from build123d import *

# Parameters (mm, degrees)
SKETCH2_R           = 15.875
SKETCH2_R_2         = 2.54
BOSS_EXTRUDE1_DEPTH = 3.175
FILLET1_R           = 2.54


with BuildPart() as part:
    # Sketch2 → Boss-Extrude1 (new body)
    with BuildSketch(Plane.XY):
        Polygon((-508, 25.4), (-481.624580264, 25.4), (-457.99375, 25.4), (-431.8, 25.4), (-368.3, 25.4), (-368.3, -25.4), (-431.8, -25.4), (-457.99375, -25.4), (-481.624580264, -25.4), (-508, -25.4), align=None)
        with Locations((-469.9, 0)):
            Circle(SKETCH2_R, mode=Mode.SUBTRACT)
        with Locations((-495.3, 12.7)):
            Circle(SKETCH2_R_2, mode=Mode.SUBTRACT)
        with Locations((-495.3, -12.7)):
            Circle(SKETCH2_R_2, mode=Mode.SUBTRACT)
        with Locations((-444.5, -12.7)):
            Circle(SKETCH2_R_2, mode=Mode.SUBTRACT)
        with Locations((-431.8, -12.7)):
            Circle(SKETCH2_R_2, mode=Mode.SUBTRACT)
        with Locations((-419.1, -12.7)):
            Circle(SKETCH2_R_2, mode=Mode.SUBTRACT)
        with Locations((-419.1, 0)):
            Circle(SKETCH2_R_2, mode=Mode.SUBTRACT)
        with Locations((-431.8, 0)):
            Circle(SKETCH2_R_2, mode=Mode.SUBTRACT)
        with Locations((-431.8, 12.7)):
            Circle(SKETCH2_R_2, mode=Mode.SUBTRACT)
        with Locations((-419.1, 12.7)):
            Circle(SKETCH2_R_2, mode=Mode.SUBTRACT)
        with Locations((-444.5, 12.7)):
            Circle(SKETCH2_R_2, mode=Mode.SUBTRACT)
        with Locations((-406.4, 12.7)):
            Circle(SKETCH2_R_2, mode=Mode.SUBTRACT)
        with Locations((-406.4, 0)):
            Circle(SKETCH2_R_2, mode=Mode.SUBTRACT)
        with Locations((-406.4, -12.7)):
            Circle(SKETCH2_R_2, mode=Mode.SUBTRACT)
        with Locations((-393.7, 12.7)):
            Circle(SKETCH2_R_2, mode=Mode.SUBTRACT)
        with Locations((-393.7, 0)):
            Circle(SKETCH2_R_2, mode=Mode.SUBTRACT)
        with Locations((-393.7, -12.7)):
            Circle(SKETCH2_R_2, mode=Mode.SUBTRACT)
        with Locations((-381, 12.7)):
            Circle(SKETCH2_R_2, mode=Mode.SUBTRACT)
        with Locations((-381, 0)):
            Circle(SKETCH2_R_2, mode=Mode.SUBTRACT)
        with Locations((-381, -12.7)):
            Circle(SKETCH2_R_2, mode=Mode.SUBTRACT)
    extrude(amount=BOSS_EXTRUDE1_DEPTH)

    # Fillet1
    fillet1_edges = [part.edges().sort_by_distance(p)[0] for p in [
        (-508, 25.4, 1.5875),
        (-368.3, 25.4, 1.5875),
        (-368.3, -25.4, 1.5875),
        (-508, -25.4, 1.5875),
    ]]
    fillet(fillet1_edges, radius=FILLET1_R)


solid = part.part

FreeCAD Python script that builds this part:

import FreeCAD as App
import Part
import Sketcher

V = App.Vector
Q = App.Units.Quantity


def edges_at(feature, points):
    """Names of the edges that pass closest to the given points."""
    edges = feature.Shape.Edges
    near = lambda p: min(range(len(edges)), key=lambda i: edges[i].distToShape(Part.Vertex(*p))[0])
    return sorted({f"Edge{near(p) + 1}" for p in points})

doc = App.newDocument("Part")
body = doc.addObject("PartDesign::Body", "Body")

sketch1 = body.newObject("Sketcher::SketchObject", "Sketch")
sketch1.AttachmentSupport = (doc.getObject("XY_Plane"), [""])
sketch1.MapMode = "FlatFace"
sketch1.addGeometry([
    Part.LineSegment(V(-368.3, 25.4, 0), V(-508, 25.4, 0)),
    Part.LineSegment(V(-508, 25.4, 0), V(-508, -25.4, 0)),
    Part.LineSegment(V(-508, -25.4, 0), V(-368.3, -25.4, 0)),
    Part.LineSegment(V(-368.3, -25.4, 0), V(-368.3, 25.4, 0)),
    Part.Circle(V(-381, -12.7, 0), V(0, 0, 1), 2.54),
    Part.Circle(V(-393.7, -12.7, 0), V(0, 0, 1), 2.54),
    Part.Circle(V(-406.4, -12.7, 0), V(0, 0, 1), 2.54),
    Part.Circle(V(-419.1, -12.7, 0), V(0, 0, 1), 2.54),
    Part.Circle(V(-431.8, -12.7, 0), V(0, 0, 1), 2.54),
    Part.Circle(V(-444.5, -12.7, 0), V(0, 0, 1), 2.54),
    Part.Circle(V(-495.3, -12.7, 0), V(0, 0, 1), 2.54),
    Part.Circle(V(-381, 0, 0), V(0, 0, 1), 2.54),
    Part.Circle(V(-393.7, 0, 0), V(0, 0, 1), 2.54),
    Part.Circle(V(-406.4, 0, 0), V(0, 0, 1), 2.54),
    Part.Circle(V(-419.1, 0, 0), V(0, 0, 1), 2.54),
    Part.Circle(V(-431.8, 0, 0), V(0, 0, 1), 2.54),
    Part.Circle(V(-381, 12.7, 0), V(0, 0, 1), 2.54),
    Part.Circle(V(-393.7, 12.7, 0), V(0, 0, 1), 2.54),
    Part.Circle(V(-406.4, 12.7, 0), V(0, 0, 1), 2.54),
    Part.Circle(V(-419.1, 12.7, 0), V(0, 0, 1), 2.54),
    Part.Circle(V(-431.8, 12.7, 0), V(0, 0, 1), 2.54),
    Part.Circle(V(-469.9, 0, 0), V(0, 0, 1), 15.875),
    Part.Circle(V(-444.5, 12.7, 0), V(0, 0, 1), 2.54),
    Part.Circle(V(-495.3, 12.7, 0), V(0, 0, 1), 2.54),
], False)
sketch1.addConstraint([
    Sketcher.Constraint("Coincident", 0, 2, 1, 1),
    Sketcher.Constraint("Coincident", 1, 2, 2, 1),
    Sketcher.Constraint("Coincident", 2, 2, 3, 1),
    Sketcher.Constraint("Coincident", 3, 2, 0, 1),
    Sketcher.Constraint("Horizontal", 0),
    Sketcher.Constraint("Vertical", 1),
    Sketcher.Constraint("Horizontal", 2),
    Sketcher.Constraint("Vertical", 3),
    Sketcher.Constraint("Equal", 4, 5),
    Sketcher.Constraint("Equal", 5, 6),
    Sketcher.Constraint("Equal", 6, 7),
    Sketcher.Constraint("Equal", 7, 8),
    Sketcher.Constraint("Equal", 8, 9),
    Sketcher.Constraint("Equal", 9, 10),
    Sketcher.Constraint("Equal", 10, 11),
    Sketcher.Constraint("Equal", 11, 12),
    Sketcher.Constraint("Equal", 12, 13),
    Sketcher.Constraint("Equal", 13, 14),
    Sketcher.Constraint("Equal", 14, 15),
    Sketcher.Constraint("Equal", 15, 16),
    Sketcher.Constraint("Equal", 16, 17),
    Sketcher.Constraint("Equal", 17, 18),
    Sketcher.Constraint("Equal", 18, 19),
    Sketcher.Constraint("Equal", 19, 20),
    Sketcher.Constraint("Equal", 20, 22),
    Sketcher.Constraint("Equal", 22, 23),
    Sketcher.Constraint("Symmetric", 4, 3, 16, 3, -1),
    Sketcher.Constraint("Symmetric", 5, 3, 17, 3, -1),
    Sketcher.Constraint("Symmetric", 6, 3, 18, 3, -1),
    Sketcher.Constraint("Symmetric", 7, 3, 19, 3, -1),
    Sketcher.Constraint("Symmetric", 8, 3, 20, 3, -1),
    Sketcher.Constraint("Symmetric", 9, 3, 22, 3, -1),
    Sketcher.Constraint("Symmetric", 10, 3, 23, 3, -1),
    Sketcher.Constraint("PointOnObject", 11, 3, -1),
    Sketcher.Constraint("PointOnObject", 12, 3, -1),
    Sketcher.Constraint("PointOnObject", 13, 3, -1),
    Sketcher.Constraint("PointOnObject", 14, 3, -1),
    Sketcher.Constraint("PointOnObject", 15, 3, -1),
    Sketcher.Constraint("PointOnObject", 21, 3, -1),
    Sketcher.Constraint("Horizontal", 4, 3, 5, 3),
    Sketcher.Constraint("Horizontal", 5, 3, 6, 3),
    Sketcher.Constraint("Horizontal", 6, 3, 7, 3),
    Sketcher.Constraint("Horizontal", 7, 3, 8, 3),
    Sketcher.Constraint("Horizontal", 8, 3, 9, 3),
    Sketcher.Constraint("Horizontal", 9, 3, 10, 3),
    Sketcher.Constraint("Vertical", 4, 3, 11, 3),
    Sketcher.Constraint("Vertical", 5, 3, 12, 3),
    Sketcher.Constraint("Vertical", 6, 3, 13, 3),
    Sketcher.Constraint("Vertical", 7, 3, 14, 3),
    Sketcher.Constraint("Vertical", 8, 3, 15, 3),
    Sketcher.Constraint("Diameter", 4, Q("0.2 in")),
    Sketcher.Constraint("Diameter", 21, Q("1.25 in")),
    Sketcher.Constraint("DistanceY", 1, 2, 1, 1, Q("2 in")),
    Sketcher.Constraint("DistanceX", 0, 2, 0, 1, Q("5.5 in")),
    Sketcher.Constraint("DistanceX", 4, 3, -1, 1, Q("15 in")),
    Sketcher.Constraint("DistanceX", 6, 3, -1, 1, Q("16 in")),
    Sketcher.Constraint("DistanceX", 8, 3, -1, 1, Q("17 in")),
    Sketcher.Constraint("DistanceX", 0, 2, -1, 1, Q("20 in")),
    Sketcher.Constraint("DistanceY", -1, 1, 0, 2, Q("1 in")),
    Sketcher.Constraint("DistanceX", 7, 3, 5, 3, Q("1 in")),
    Sketcher.Constraint("DistanceX", 9, 3, 7, 3, Q("1 in")),
    Sketcher.Constraint("DistanceX", 10, 3, 9, 3, Q("2 in")),
    Sketcher.Constraint("DistanceY", 4, 3, 16, 3, Q("1 in")),
    Sketcher.Constraint("DistanceX", 21, 3, 9, 3, Q("1 in")),
    Sketcher.Constraint("DistanceX", 5, 3, 2, 2, Q("1 in")),
])
pad1 = body.newObject("PartDesign::Pad", "Pad")
pad1.Profile = sketch1
pad1.Length = Q("0.125 in")
doc.recompute()

fillet = body.newObject("PartDesign::Fillet", "Fillet")
fillet.Base = (pad1, edges_at(pad1, [
    (-508, 25.4, 1.587),
    (-368.3, 25.4, 1.587),
    (-368.3, -25.4, 1.587),
    (-508, -25.4, 1.587),
]))
fillet.Radius = Q("0.1 in")

doc.recompute()
